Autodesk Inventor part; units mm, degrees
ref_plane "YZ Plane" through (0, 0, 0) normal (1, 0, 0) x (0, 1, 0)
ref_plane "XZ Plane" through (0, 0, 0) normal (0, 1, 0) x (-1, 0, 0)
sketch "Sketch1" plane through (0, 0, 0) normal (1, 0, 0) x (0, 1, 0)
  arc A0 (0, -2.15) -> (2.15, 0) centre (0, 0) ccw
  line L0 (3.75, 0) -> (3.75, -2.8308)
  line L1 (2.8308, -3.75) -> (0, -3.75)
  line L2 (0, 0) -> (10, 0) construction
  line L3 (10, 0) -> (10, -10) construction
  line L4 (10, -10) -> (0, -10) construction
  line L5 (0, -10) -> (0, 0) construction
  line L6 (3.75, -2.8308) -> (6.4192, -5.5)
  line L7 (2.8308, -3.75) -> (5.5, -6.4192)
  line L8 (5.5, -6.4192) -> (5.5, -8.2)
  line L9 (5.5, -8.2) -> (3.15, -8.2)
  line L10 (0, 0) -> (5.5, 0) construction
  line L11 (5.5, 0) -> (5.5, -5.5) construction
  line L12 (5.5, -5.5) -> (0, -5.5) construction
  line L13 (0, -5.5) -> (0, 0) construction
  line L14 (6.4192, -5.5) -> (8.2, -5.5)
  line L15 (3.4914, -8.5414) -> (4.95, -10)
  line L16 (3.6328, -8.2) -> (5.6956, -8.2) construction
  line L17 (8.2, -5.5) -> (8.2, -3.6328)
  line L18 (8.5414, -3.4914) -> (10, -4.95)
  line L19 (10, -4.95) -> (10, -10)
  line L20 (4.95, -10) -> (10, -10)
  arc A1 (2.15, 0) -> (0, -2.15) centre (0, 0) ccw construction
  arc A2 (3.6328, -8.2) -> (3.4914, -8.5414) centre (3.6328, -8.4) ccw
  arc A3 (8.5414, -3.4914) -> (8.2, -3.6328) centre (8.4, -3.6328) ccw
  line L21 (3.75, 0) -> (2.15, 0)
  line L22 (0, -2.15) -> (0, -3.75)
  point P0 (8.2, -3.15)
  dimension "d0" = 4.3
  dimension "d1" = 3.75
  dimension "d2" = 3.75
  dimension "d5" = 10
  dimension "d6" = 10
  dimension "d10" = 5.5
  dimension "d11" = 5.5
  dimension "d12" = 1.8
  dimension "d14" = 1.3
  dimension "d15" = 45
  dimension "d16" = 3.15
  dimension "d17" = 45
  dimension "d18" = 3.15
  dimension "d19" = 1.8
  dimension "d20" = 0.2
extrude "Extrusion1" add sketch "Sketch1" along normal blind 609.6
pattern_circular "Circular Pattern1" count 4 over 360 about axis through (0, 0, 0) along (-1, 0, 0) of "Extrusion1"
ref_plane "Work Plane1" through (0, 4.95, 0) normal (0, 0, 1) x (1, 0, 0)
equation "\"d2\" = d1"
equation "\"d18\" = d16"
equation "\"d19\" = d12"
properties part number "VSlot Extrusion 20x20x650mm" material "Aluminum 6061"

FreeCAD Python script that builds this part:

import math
import FreeCAD as App
import Part
import Sketcher
from FreeCAD import Vector

doc = App.newDocument("Part")
body = doc.addObject("PartDesign::Body", "Body")

# Sketch on YZ plane
sketch1 = doc.addObject("Sketcher::SketchObject", "Sketch")
body.addObject(sketch1)
sketch1.AttachmentSupport = (doc.YZ_Plane, [""])
sketch1.MapMode = "FlatFace"
sketch1.addGeometry([
    Part.ArcOfCircle(Part.Circle(Vector(0, 0, 0), Vector(0, 0, 1), 2.15), math.radians(-90), math.radians(0)),  # 0
    Part.LineSegment(Vector(0, -2.15, 0), Vector(0, -3.75, 0)),  # 1
    Part.LineSegment(Vector(0, -3.75, 0), Vector(2.83, -3.75, 0)),  # 2
    Part.LineSegment(Vector(2.83, -3.75, 0), Vector(5.5, -6.42, 0)),  # 3
    Part.LineSegment(Vector(5.5, -6.42, 0), Vector(5.5, -8.2, 0)),  # 4
    Part.LineSegment(Vector(5.5, -8.2, 0), Vector(3.63, -8.2, 0)),  # 5
    Part.ArcOfCircle(Part.Circle(Vector(3.63, -8.4, 0), Vector(0, 0, 1), 0.2), math.radians(90), math.radians(225)),  # 6
    Part.LineSegment(Vector(3.49, -8.54, 0), Vector(4.95, -10, 0)),  # 7
    Part.LineSegment(Vector(4.95, -10, 0), Vector(10, -10, 0)),  # 8
    Part.LineSegment(Vector(10, -10, 0), Vector(10, -4.95, 0)),  # 9
    Part.LineSegment(Vector(10, -4.95, 0), Vector(8.54, -3.49, 0)),  # 10
    Part.ArcOfCircle(Part.Circle(Vector(8.4, -3.63, 0), Vector(0, 0, 1), 0.2), math.radians(45), math.radians(180)),  # 11
    Part.LineSegment(Vector(8.2, -3.63, 0), Vector(8.2, -5.5, 0)),  # 12
    Part.LineSegment(Vector(8.2, -5.5, 0), Vector(6.42, -5.5, 0)),  # 13
    Part.LineSegment(Vector(6.42, -5.5, 0), Vector(3.75, -2.83, 0)),  # 14
    Part.LineSegment(Vector(3.75, -2.83, 0), Vector(3.75, 0, 0)),  # 15
    Part.LineSegment(Vector(3.75, 0, 0), Vector(2.15, 0, 0)),  # 16
], False)
sketch1.addConstraint([
    Sketcher.Constraint("Coincident", 0, 1, 1, 1),
    Sketcher.Constraint("Coincident", 1, 2, 2, 1),
    Sketcher.Constraint("Coincident", 2, 2, 3, 1),
    Sketcher.Constraint("Coincident", 3, 2, 4, 1),
    Sketcher.Constraint("Coincident", 4, 2, 5, 1),
    Sketcher.Constraint("Tangent", 5, 2, 6, 1),
    Sketcher.Constraint("Tangent", 6, 2, 7, 1),
    Sketcher.Constraint("Coincident", 7, 2, 8, 1),
    Sketcher.Constraint("Coincident", 8, 2, 9, 1),
    Sketcher.Constraint("Coincident", 9, 2, 10, 1),
    Sketcher.Constraint("Tangent", 10, 2, 11, 1),
    Sketcher.Constraint("Tangent", 11, 2, 12, 1),
    Sketcher.Constraint("Coincident", 12, 2, 13, 1),
    Sketcher.Constraint("Coincident", 13, 2, 14, 1),
    Sketcher.Constraint("Coincident", 14, 2, 15, 1),
    Sketcher.Constraint("Coincident", 15, 2, 16, 1),
    Sketcher.Constraint("Coincident", 16, 2, 0, 2),
    Sketcher.Constraint("Vertical", 1),
    Sketcher.Constraint("Horizontal", 2),
    Sketcher.Constraint("Vertical", 4),
    Sketcher.Constraint("Horizontal", 5),
    Sketcher.Constraint("Horizontal", 8),
    Sketcher.Constraint("Vertical", 9),
    Sketcher.Constraint("Vertical", 12),
    Sketcher.Constraint("Horizontal", 13),
    Sketcher.Constraint("Vertical", 15),
    Sketcher.Constraint("Horizontal", 16),
    Sketcher.Constraint("Coincident", 0, 3, -1, 1),
    Sketcher.Constraint("Equal", 6, 11),
    Sketcher.Constraint("PointOnObject", 0, 1, -2),
    Sketcher.Constraint("PointOnObject", 15, 2, -1),
    Sketcher.Constraint("Parallel", 3, 7),
    Sketcher.Constraint("Parallel", 7, 10),
    Sketcher.Constraint("Parallel", 10, 14),
    Sketcher.Constraint("Equal", 16, 1),
    Sketcher.Constraint("Equal", 13, 4),
    Sketcher.Constraint("Equal", 8, 9),
    Sketcher.Constraint("Equal", 5, 12),
    Sketcher.Constraint("Equal", 2, 15),
    Sketcher.Constraint("Equal", 7, 10),
    Sketcher.Constraint("Equal", 3, 14),
    Sketcher.Constraint("Radius", 6, 0.2),
    Sketcher.Constraint("Radius", 0, 2.15),
    Sketcher.Constraint("DistanceY", 7, 2, -1, 1, 10.0),
    Sketcher.Constraint("DistanceX", -1, 1, 3, 2, 5.5),
    Sketcher.Constraint("DistanceY", 7, 2, 4, 2, 1.8),
    Sketcher.Constraint("DistanceY", 1, 2, -1, 1, 3.75),
    Sketcher.Constraint("DistanceX", 8, 1, 8, 2, 5.05),
    Sketcher.Constraint("DistanceX", 2, 1, 2, 2, 2.8308),
])
pad1 = doc.addObject("PartDesign::Pad", "Pad")
body.addObject(pad1)
pad1.Profile = sketch1
pad1.Length = 609.6
doc.recompute()

polarpattern = doc.addObject("PartDesign::PolarPattern", "PolarPattern")
body.addObject(polarpattern)
polarpattern.Originals = [pad1]
polarpattern.Axis = (doc.X_Axis, [""])
polarpattern.Angle = 360
polarpattern.Occurrences = 4
body.Tip = polarpattern

doc.recompute()
